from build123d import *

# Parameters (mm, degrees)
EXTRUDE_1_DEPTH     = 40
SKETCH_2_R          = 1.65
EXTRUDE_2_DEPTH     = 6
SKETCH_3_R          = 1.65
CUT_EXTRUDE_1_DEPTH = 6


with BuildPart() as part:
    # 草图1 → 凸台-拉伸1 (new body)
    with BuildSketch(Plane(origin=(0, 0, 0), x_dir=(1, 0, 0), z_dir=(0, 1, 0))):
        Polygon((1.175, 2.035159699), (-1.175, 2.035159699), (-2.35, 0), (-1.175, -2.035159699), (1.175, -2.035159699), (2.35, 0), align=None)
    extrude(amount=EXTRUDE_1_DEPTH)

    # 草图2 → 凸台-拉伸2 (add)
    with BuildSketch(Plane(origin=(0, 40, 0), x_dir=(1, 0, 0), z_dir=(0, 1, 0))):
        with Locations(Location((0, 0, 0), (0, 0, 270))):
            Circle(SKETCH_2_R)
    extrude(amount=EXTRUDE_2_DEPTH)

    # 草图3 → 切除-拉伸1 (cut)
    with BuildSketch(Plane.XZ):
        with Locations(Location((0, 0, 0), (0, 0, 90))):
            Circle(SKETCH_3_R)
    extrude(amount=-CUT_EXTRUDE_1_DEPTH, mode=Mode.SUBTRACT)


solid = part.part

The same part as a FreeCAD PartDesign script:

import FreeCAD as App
import Part
import Sketcher

V = App.Vector
Q = App.Units.Quantity

doc = App.newDocument("Part")
body = doc.addObject("PartDesign::Body", "Body")

# Sketch on XZ plane
sketch1 = body.newObject("Sketcher::SketchObject", "Sketch")
sketch1.AttachmentSupport = (doc.getObject("XZ_Plane"), [""])
sketch1.MapMode = "FlatFace"
sketch1.addGeometry([
    Part.LineSegment(V(1.175, -2.03516, 0), V(-1.175, -2.03516, 0)),  # 0
    Part.LineSegment(V(-1.175, -2.03516, 0), V(-2.35, 0, 0)),  # 1
    Part.LineSegment(V(-2.35, 0, 0), V(-1.175, 2.03516, 0)),  # 2
    Part.LineSegment(V(-1.175, 2.03516, 0), V(1.175, 2.03516, 0)),  # 3
    Part.LineSegment(V(1.175, 2.03516, 0), V(2.35, 0, 0)),  # 4
    Part.LineSegment(V(2.35, 0, 0), V(1.175, -2.03516, 0)),  # 5
], False)
sketch1.addConstraint([
    Sketcher.Constraint("Coincident", 0, 2, 1, 1),
    Sketcher.Constraint("Coincident", 1, 2, 2, 1),
    Sketcher.Constraint("Coincident", 2, 2, 3, 1),
    Sketcher.Constraint("Coincident", 3, 2, 4, 1),
    Sketcher.Constraint("Coincident", 4, 2, 5, 1),
    Sketcher.Constraint("Coincident", 5, 2, 0, 1),
    Sketcher.Constraint("Horizontal", 0),
    Sketcher.Constraint("Horizontal", 3),
    Sketcher.Constraint("Symmetric", 0, 2, 3, 2, -1, 1),
    Sketcher.Constraint("Symmetric", 1, 2, 4, 2, -1, 1),
    Sketcher.Constraint("PointOnObject", 1, 2, -1),
    Sketcher.Constraint("Parallel", 2, 5),
    Sketcher.Constraint("Vertical", 0, 2, 2, 2),
    Sketcher.Constraint("Angle", 1, Q("120 deg")),
    Sketcher.Constraint("DistanceX", 0, 2, 0, 1, Q("2.35 mm")),
    Sketcher.Constraint("DistanceX", 1, 2, 4, 2, Q("4.7 mm")),
])
pad1 = body.newObject("PartDesign::Pad", "Pad")
pad1.Profile = sketch1
pad1.Length = 40
pad1.Reversed = True

# Sketch on XZ plane
sketch2 = body.newObject("Sketcher::SketchObject", "Sketch001")
sketch2.AttachmentSupport = (doc.getObject("XZ_Plane"), [""])
sketch2.MapMode = "FlatFace"
sketch2.AttachmentOffset = App.Placement(V(0, 0, -40), App.Rotation())
sketch2.addGeometry(Part.Circle(V(0, 0, 0), V(0, 0, 1), 1.65), False)
sketch2.addConstraint([
    Sketcher.Constraint("Coincident", 0, 3, -1, 1),
    Sketcher.Constraint("Diameter", 0, Q("3.3 mm")),
])
pad2 = body.newObject("PartDesign::Pad", "Pad001")
pad2.Profile = sketch2
pad2.Length = 6
pad2.Reversed = True

# Sketch on XZ plane
sketch3 = body.newObject("Sketcher::SketchObject", "Sketch002")
sketch3.AttachmentSupport = (doc.getObject("XZ_Plane"), [""])
sketch3.MapMode = "FlatFace"
sketch3.addGeometry(Part.Circle(V(0, 0, 0), V(0, 0, 1), 1.65), False)
sketch3.addConstraint([
    Sketcher.Constraint("Coincident", 0, 3, -1, 1),
    Sketcher.Constraint("Diameter", 0, Q("3.3 mm")),
])
pocket1 = body.newObject("PartDesign::Pocket", "Pocket")
pocket1.Profile = sketch3
pocket1.Length = 6

doc.recompute()
